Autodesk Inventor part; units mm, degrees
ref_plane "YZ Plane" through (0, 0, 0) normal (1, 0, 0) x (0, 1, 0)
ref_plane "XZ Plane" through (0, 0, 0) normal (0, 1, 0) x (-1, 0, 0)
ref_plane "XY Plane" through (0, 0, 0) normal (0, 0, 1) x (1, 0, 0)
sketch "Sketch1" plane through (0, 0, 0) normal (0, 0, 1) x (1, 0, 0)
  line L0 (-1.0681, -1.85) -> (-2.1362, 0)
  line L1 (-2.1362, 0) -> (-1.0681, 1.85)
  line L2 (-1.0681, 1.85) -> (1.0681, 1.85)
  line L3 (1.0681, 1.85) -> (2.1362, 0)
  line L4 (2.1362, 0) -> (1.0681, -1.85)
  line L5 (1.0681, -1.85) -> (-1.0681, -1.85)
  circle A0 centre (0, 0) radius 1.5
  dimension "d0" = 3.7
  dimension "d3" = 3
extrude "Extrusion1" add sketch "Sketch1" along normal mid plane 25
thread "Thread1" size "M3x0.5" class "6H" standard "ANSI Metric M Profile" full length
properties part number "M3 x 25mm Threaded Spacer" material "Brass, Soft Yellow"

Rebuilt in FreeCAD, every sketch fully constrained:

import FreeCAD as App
import Part
import Sketcher
from FreeCAD import Vector
Q = App.Units.Quantity

doc = App.newDocument("Part")
body = doc.addObject("PartDesign::Body", "Body")

sketch1 = body.newObject("Sketcher::SketchObject", "Sketch")
sketch1.AttachmentSupport = (doc.getObject("XY_Plane"), [""])
sketch1.MapMode = "FlatFace"
sketch1.addGeometry([
    Part.LineSegment(Vector(-2.1, 0, 0), Vector(-1.1, -1.9, 0)),
    Part.LineSegment(Vector(-1.1, -1.9, 0), Vector(1.1, -1.9, 0)),
    Part.LineSegment(Vector(1.1, -1.9, 0), Vector(2.1, 0, 0)),
    Part.LineSegment(Vector(2.1, 0, 0), Vector(1.1, 1.9, 0)),
    Part.LineSegment(Vector(1.1, 1.9, 0), Vector(-1.1, 1.9, 0)),
    Part.LineSegment(Vector(-1.1, 1.9, 0), Vector(-2.1, 0, 0)),
    Part.Circle(Vector(0, 0, 0), Vector(0, 0, 1), 1.5),
], False)
sketch1.addConstraint([
    Sketcher.Constraint("Coincident", 0, 2, 1, 1),
    Sketcher.Constraint("Coincident", 1, 2, 2, 1),
    Sketcher.Constraint("Coincident", 2, 2, 3, 1),
    Sketcher.Constraint("Coincident", 3, 2, 4, 1),
    Sketcher.Constraint("Coincident", 4, 2, 5, 1),
    Sketcher.Constraint("Coincident", 5, 2, 0, 1),
    Sketcher.Constraint("Horizontal", 1),
    Sketcher.Constraint("Horizontal", 4),
    Sketcher.Constraint("Coincident", 6, 3, -1, 1),
    Sketcher.Constraint("Symmetric", 0, 2, 3, 2, -1, 1),
    Sketcher.Constraint("Symmetric", 2, 2, 5, 2, -1, 1),
    Sketcher.Constraint("PointOnObject", 2, 2, -1),
    Sketcher.Constraint("Parallel", 2, 5),
    Sketcher.Constraint("Vertical", 1, 2, 3, 2),
    Sketcher.Constraint("Diameter", 6, Q("3 mm")),
    Sketcher.Constraint("DistanceY", 1, 2, 3, 2, Q("3.7 mm")),
    Sketcher.Constraint("Angle", 0, Q("-60 deg")),
    Sketcher.Constraint("DistanceX", 1, 1, 1, 2, Q("2.1362 mm")),
])
pad1 = body.newObject("PartDesign::Pad", "Pad")
pad1.Profile = sketch1
pad1.Length = 25
pad1.Midplane = True

doc.recompute()
